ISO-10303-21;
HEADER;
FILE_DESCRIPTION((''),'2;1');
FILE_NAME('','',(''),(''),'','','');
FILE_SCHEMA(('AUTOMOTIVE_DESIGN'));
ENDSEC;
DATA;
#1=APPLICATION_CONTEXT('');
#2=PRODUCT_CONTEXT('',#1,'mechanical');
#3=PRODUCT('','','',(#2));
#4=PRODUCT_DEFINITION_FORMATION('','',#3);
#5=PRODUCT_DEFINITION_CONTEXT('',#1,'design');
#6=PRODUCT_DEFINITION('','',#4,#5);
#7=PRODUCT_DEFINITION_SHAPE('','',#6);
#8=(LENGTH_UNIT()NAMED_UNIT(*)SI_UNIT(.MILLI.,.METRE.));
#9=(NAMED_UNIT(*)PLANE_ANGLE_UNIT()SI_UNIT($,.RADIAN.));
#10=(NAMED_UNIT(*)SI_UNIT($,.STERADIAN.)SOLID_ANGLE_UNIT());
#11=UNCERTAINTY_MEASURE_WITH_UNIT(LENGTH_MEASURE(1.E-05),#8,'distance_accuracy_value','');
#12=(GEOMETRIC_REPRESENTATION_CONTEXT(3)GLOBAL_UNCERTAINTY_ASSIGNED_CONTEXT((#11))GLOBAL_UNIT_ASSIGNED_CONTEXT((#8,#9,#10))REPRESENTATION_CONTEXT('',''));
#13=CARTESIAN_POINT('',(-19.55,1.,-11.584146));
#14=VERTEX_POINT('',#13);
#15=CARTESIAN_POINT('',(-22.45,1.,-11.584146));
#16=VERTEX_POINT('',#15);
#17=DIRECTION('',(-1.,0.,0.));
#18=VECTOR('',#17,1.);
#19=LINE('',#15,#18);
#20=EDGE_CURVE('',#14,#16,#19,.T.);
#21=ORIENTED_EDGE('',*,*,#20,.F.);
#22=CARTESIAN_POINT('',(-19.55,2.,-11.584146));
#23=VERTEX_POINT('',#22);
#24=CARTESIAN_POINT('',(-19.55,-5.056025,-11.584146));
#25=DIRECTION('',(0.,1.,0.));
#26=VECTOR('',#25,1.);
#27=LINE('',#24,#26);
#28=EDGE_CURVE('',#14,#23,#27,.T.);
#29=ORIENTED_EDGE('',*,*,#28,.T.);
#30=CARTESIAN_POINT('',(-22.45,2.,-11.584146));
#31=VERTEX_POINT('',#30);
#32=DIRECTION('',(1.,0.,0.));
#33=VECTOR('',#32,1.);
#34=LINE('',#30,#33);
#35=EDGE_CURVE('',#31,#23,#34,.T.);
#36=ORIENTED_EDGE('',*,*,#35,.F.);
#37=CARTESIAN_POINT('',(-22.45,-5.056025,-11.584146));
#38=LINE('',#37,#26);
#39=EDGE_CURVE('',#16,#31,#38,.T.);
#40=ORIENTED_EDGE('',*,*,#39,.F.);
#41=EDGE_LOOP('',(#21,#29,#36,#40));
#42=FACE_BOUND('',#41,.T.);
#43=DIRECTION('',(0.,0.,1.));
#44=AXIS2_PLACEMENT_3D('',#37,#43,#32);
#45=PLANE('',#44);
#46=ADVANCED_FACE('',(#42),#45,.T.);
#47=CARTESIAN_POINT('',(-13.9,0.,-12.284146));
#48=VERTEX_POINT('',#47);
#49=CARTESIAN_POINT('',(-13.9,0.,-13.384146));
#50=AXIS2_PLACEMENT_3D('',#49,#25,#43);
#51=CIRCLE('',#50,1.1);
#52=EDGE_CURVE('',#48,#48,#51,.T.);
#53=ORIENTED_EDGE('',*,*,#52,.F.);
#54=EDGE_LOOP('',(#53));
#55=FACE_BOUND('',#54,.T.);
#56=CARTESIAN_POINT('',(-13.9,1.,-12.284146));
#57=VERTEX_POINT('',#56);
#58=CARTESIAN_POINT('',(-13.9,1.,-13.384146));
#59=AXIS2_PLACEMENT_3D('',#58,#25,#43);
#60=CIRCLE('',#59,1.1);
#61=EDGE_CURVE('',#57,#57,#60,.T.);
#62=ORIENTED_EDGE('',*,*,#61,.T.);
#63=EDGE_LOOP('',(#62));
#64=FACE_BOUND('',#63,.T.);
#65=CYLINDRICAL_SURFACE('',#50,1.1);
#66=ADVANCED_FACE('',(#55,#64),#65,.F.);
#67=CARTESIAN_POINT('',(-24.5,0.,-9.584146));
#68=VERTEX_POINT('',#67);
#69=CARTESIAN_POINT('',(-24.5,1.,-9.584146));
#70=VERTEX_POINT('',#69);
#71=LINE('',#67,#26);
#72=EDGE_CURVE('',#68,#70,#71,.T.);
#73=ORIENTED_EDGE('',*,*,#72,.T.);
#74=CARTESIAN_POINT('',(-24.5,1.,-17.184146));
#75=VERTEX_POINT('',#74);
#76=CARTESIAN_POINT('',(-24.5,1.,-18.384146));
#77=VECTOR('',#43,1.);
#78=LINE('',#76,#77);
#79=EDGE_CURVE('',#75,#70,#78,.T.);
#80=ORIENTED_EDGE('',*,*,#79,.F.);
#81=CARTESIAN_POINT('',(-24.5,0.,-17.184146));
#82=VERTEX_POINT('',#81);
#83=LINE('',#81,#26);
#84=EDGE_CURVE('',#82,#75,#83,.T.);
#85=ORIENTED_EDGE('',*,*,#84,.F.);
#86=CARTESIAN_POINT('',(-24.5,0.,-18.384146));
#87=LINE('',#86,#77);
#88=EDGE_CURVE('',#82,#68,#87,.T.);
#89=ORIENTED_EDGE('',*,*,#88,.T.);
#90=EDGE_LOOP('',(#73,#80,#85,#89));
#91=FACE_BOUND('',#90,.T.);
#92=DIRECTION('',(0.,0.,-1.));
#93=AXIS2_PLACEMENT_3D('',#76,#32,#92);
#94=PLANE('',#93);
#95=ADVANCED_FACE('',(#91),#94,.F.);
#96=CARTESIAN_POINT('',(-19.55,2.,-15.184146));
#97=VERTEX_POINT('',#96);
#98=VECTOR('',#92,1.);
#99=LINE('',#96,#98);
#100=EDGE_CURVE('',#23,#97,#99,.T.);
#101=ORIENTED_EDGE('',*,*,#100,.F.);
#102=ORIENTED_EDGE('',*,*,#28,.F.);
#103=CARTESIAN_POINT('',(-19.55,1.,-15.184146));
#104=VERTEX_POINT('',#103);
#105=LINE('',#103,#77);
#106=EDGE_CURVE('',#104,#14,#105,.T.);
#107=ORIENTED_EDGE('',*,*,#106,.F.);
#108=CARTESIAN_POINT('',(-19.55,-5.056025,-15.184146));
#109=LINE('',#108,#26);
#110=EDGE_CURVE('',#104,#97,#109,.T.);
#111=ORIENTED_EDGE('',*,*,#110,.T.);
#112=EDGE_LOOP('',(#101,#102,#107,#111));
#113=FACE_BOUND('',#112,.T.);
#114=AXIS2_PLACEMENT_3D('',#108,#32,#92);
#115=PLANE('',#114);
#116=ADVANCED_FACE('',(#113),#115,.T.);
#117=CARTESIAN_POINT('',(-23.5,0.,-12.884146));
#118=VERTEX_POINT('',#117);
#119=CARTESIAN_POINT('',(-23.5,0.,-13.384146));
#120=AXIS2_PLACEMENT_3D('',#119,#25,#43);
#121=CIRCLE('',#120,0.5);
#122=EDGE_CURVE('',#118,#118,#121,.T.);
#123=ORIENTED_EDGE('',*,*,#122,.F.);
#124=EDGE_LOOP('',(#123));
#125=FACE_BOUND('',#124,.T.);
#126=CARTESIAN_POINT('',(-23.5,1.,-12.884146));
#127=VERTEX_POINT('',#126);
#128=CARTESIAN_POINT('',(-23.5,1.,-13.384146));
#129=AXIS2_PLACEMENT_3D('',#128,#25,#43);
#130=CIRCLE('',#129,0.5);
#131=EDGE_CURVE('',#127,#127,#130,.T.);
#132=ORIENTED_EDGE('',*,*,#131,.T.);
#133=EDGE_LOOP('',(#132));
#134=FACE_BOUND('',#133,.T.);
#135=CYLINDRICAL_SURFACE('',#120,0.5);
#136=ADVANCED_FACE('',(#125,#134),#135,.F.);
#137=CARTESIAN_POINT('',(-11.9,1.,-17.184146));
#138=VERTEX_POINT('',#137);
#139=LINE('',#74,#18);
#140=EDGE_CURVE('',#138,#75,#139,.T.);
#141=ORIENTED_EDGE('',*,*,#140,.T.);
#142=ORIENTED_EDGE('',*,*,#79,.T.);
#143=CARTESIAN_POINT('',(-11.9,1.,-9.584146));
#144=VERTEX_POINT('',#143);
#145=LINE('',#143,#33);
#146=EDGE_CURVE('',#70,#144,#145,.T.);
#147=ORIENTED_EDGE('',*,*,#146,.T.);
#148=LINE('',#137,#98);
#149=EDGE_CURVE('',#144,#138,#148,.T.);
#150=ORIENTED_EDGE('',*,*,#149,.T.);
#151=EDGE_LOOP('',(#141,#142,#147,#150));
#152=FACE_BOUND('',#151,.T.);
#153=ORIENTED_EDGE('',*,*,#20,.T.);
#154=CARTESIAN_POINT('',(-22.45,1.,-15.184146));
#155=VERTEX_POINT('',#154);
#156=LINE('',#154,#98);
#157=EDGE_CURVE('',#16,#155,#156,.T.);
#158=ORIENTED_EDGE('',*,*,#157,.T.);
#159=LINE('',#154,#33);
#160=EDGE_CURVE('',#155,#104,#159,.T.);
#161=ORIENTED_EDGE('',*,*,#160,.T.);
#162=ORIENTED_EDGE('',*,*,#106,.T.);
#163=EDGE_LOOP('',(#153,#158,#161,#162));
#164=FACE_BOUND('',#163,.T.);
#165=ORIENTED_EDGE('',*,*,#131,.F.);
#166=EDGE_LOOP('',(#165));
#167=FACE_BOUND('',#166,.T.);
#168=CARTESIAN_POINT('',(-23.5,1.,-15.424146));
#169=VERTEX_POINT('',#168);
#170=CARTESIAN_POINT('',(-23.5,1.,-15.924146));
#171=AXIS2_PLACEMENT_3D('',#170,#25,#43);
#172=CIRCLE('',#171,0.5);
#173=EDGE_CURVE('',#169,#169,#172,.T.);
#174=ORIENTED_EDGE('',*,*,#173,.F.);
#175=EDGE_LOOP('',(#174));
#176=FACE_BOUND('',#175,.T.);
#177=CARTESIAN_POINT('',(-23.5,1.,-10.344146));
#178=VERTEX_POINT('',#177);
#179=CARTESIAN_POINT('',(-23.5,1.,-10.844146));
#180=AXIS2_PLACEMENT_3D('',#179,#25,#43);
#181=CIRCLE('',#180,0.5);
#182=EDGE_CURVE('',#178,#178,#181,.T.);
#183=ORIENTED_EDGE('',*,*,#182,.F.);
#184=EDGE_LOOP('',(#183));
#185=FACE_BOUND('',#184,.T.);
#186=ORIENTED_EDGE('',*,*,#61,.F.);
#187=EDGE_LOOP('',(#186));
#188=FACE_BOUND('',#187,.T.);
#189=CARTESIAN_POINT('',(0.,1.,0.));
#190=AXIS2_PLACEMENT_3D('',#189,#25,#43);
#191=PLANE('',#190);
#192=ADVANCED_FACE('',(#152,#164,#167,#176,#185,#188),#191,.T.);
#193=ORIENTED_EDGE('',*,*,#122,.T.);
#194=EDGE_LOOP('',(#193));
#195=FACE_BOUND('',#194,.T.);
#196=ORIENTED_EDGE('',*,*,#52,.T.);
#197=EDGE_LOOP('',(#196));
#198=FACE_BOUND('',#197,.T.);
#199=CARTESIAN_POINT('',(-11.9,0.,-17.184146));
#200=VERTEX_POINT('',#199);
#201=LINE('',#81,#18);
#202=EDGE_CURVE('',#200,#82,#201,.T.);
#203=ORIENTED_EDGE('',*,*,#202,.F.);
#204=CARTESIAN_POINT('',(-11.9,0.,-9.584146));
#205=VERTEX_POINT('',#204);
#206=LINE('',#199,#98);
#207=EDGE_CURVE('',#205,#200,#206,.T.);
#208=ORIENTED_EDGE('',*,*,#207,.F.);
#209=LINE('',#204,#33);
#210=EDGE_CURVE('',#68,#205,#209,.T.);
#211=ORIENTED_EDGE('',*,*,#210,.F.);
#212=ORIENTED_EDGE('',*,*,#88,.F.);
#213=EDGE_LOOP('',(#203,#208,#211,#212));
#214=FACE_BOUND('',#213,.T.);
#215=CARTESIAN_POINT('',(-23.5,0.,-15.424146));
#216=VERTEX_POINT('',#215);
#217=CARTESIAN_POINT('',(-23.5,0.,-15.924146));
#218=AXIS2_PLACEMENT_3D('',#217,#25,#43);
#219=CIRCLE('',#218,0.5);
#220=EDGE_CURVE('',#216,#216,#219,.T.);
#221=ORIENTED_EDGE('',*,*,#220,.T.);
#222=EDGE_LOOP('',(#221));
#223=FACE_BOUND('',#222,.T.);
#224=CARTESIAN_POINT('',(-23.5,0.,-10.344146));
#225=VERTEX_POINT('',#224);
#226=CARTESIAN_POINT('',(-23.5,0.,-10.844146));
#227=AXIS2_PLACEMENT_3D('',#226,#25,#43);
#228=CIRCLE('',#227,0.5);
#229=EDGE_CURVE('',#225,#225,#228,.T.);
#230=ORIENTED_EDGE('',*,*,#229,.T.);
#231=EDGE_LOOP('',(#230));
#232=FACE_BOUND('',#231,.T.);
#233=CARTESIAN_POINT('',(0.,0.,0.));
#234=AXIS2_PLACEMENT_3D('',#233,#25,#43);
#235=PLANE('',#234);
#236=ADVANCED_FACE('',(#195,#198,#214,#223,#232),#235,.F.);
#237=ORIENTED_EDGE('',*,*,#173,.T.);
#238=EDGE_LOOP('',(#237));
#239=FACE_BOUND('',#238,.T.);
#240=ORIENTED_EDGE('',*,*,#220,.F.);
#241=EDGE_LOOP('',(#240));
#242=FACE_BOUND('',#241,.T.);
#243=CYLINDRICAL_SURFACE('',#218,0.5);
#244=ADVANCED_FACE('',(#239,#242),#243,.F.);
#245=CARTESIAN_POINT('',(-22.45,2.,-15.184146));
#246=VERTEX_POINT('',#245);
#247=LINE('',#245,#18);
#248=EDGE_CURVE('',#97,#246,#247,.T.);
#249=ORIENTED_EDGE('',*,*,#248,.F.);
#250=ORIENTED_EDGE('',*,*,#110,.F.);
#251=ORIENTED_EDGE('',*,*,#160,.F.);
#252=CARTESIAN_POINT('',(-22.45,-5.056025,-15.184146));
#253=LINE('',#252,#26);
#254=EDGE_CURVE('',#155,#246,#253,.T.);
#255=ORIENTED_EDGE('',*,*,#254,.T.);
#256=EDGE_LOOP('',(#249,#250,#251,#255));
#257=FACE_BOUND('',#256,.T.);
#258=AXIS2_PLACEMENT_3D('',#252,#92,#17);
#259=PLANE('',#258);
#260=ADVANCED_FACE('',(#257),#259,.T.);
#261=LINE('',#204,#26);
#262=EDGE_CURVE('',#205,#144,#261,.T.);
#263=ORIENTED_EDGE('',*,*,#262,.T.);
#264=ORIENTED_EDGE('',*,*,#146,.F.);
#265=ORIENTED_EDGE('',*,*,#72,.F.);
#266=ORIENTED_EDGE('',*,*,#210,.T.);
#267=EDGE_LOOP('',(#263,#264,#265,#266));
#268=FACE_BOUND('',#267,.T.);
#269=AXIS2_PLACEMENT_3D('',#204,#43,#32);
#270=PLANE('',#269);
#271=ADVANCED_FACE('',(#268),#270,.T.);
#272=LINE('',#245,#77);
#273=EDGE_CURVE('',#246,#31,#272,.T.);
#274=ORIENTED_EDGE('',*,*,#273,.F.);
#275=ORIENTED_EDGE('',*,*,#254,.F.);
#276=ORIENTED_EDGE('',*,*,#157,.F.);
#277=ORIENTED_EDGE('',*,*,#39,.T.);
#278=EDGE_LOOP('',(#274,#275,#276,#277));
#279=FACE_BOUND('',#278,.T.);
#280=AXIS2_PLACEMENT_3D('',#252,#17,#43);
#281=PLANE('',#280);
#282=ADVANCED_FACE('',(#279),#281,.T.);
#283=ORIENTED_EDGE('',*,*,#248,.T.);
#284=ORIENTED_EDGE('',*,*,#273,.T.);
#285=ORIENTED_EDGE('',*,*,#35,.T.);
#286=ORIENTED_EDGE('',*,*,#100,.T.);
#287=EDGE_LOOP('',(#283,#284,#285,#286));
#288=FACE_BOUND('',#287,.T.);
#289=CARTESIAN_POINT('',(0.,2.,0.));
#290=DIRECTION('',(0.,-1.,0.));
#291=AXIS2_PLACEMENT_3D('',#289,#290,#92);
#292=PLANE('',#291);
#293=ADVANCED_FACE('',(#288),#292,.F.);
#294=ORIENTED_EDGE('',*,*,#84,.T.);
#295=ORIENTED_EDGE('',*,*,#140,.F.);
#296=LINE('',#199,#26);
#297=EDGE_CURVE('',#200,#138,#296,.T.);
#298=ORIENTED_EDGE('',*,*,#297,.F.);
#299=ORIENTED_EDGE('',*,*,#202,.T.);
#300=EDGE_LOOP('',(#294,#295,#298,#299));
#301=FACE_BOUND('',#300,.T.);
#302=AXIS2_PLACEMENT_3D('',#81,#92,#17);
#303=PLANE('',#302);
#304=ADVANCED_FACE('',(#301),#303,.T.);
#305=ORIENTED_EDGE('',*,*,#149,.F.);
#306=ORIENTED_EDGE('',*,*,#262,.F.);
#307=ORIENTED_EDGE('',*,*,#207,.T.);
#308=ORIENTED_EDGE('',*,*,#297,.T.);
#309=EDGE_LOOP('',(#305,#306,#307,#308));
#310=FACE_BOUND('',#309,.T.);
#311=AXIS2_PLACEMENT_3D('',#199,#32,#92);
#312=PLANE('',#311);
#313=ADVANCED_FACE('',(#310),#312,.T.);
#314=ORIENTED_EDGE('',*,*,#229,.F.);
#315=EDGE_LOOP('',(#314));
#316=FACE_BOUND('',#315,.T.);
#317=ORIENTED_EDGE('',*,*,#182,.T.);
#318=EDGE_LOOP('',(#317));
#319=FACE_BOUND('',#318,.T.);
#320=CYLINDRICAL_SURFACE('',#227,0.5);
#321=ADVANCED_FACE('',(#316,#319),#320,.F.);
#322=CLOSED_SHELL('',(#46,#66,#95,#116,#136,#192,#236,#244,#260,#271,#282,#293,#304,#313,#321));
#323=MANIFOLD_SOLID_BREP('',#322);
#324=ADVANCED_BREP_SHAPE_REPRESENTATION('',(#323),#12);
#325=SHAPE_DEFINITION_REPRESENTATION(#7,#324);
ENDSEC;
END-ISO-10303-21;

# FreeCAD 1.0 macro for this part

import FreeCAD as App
import Part
import Sketcher
from FreeCAD import Vector


def add_polygon(sketch, points):
    """Adds a closed chain of lines whose ends are joined by coincident constraints."""
    first, n = sketch.GeometryCount, len(points)
    for a, b in zip(points, points[1:] + points[:1]):
        sketch.addGeometry(Part.LineSegment(App.Vector(*a, 0), App.Vector(*b, 0)), False)
    for i in range(n):
        sketch.addConstraint(Sketcher.Constraint("Coincident", first + i, 2, first + (i + 1) % n, 1))

doc = App.newDocument("Part")
body = doc.addObject("PartDesign::Body", "Body")

# Sketch on XZ plane
sketch1 = doc.addObject("Sketcher::SketchObject", "Sketch")
body.addObject(sketch1)
sketch1.AttachmentSupport = (doc.XZ_Plane, [""])
sketch1.MapMode = "FlatFace"
add_polygon(sketch1, [(-24, -18), (-24, -8), (-8, -8), (-8, -18)])  # lines 0-3
sketch1.addConstraint([
    Sketcher.Constraint("Vertical", 0),
    Sketcher.Constraint("Horizontal", 1),
    Sketcher.Constraint("Vertical", 2),
    Sketcher.Constraint("Horizontal", 3),
    Sketcher.Constraint("DistanceX", 1, 1, 1, 2, 17.0),
    Sketcher.Constraint("DistanceY", 0, 1, 0, 2, 10.0),
    Sketcher.Constraint("DistanceX", 0, 2, -1, 1, 24.5),
    Sketcher.Constraint("DistanceY", 0, 2, -1, 1, 8.384146),
])
pad1 = doc.addObject("PartDesign::Pad", "Pad")
body.addObject(pad1)
pad1.Profile = sketch1
pad1.Length = 1
pad1.Reversed = True

# Sketch on XZ plane
sketch2 = doc.addObject("Sketcher::SketchObject", "Sketch001")
body.addObject(sketch2)
sketch2.AttachmentSupport = (doc.XZ_Plane, [""])
sketch2.MapMode = "FlatFace"
sketch2.AttachmentOffset = App.Placement(Vector(0, 0, -1), App.Rotation())
add_polygon(sketch2, [(-22.5, -15.4), (-22.5, -11.4), (-19.5, -11.4), (-19.5, -15.4)])  # lines 0-3
sketch2.addConstraint([
    Sketcher.Constraint("Vertical", 0),
    Sketcher.Constraint("Horizontal", 1),
    Sketcher.Constraint("Vertical", 2),
    Sketcher.Constraint("Horizontal", 3),
    Sketcher.Constraint("DistanceX", 1, 1, 1, 2, 3.0),
    Sketcher.Constraint("DistanceY", 0, 1, 0, 2, 4.0),
    Sketcher.Constraint("DistanceX", 0, 2, -1, 1, 22.5),
    Sketcher.Constraint("DistanceY", 0, 2, -1, 1, 11.384146),
])
pad2 = doc.addObject("PartDesign::Pad", "Pad001")
body.addObject(pad2)
pad2.Profile = sketch2
pad2.Length = 1
pad2.Reversed = True

# Sketch on XZ plane
sketch3 = doc.addObject("Sketcher::SketchObject", "Sketch002")
body.addObject(sketch3)
sketch3.AttachmentSupport = (doc.XZ_Plane, [""])
sketch3.MapMode = "FlatFace"
sketch3.AttachmentOffset = App.Placement(Vector(0, 0, -1), App.Rotation())
add_polygon(sketch3, [(-29, -19), (-29, -8), (-7, -8), (-7, -19)])  # lines 0-3
add_polygon(sketch3, [(-12, -10), (-24, -10), (-24, -17), (-12, -17)])  # lines 4-7
sketch3.addConstraint([
    Sketcher.Constraint("Vertical", 0),
    Sketcher.Constraint("Horizontal", 1),
    Sketcher.Constraint("Vertical", 2),
    Sketcher.Constraint("Horizontal", 3),
    Sketcher.Constraint("Horizontal", 4),
    Sketcher.Constraint("Vertical", 5),
    Sketcher.Constraint("Horizontal", 6),
    Sketcher.Constraint("Vertical", 7),
    Sketcher.Constraint("DistanceX", 4, 2, 4, 1, 12.6),
    Sketcher.Constraint("DistanceY", 5, 2, 5, 1, 7.6),
    Sketcher.Constraint("DistanceX", 4, 2, -1, 1, 24.5),
    Sketcher.Constraint("DistanceX", 1, 1, 1, 2, 22.308499),
    Sketcher.Constraint("DistanceY", 0, 1, 0, 2, 11.481162),
    Sketcher.Constraint("DistanceY", 0, 2, -1, 1, 7.852789),
    Sketcher.Constraint("DistanceX", 0, 2, -1, 1, 29.181106),
    Sketcher.Constraint("DistanceY", 4, 2, -1, 1, 9.584146),
])
pocket1 = doc.addObject("PartDesign::Pocket", "Pocket")
body.addObject(pocket1)
pocket1.Profile = sketch3
pocket1.Length = 1
pocket1.Reversed = True

# Sketch on XZ plane
sketch4 = doc.addObject("Sketcher::SketchObject", "Sketch003")
body.addObject(sketch4)
sketch4.AttachmentSupport = (doc.XZ_Plane, [""])
sketch4.MapMode = "FlatFace"
sketch4.AttachmentOffset = App.Placement(Vector(0, 0, -1), App.Rotation())
sketch4.addGeometry([
    Part.Circle(Vector(-23.5, -13.4, 0), Vector(0, 0, 1), 0.5),
    Part.Circle(Vector(-23.5, -15.9, 0), Vector(0, 0, 1), 0.5),
    Part.Circle(Vector(-23.5, -10.8, 0), Vector(0, 0, 1), 0.5),
    Part.Circle(Vector(-13.9, -13.4, 0), Vector(0, 0, 1), 1.1),
], False)
sketch4.addConstraint([
    Sketcher.Constraint("Equal", 0, 1),
    Sketcher.Constraint("Equal", 1, 2),
    Sketcher.Constraint("Horizontal", 0, 3, 3, 3),
    Sketcher.Constraint("Vertical", 0, 3, 1, 3),
    Sketcher.Constraint("Vertical", 1, 3, 2, 3),
    Sketcher.Constraint("Diameter", 0, 1.0),
    Sketcher.Constraint("Diameter", 3, 2.2),
    Sketcher.Constraint("DistanceX", 0, 3, -1, 1, 23.5),
    Sketcher.Constraint("DistanceX", 3, 3, -1, 1, 13.9),
    Sketcher.Constraint("DistanceY", 1, 3, 0, 3, 2.54),
    Sketcher.Constraint("DistanceY", 0, 3, 2, 3, 2.54),
    Sketcher.Constraint("DistanceY", 0, 3, -1, 1, 13.384146),
])
pocket2 = doc.addObject("PartDesign::Pocket", "Pocket001")
body.addObject(pocket2)
pocket2.Profile = sketch4
pocket2.Length = 1
pocket2.Reversed = True

# Sketch on XZ plane
sketch5 = doc.addObject("Sketcher::SketchObject", "Sketch004")
body.addObject(sketch5)
sketch5.AttachmentSupport = (doc.XZ_Plane, [""])
sketch5.MapMode = "FlatFace"
sketch5.AttachmentOffset = App.Placement(Vector(0, 0, -2), App.Rotation())
add_polygon(sketch5, [(-22.7, -15.9), (-22.7, -11.1), (-19.1, -11.1), (-19.1, -15.9)])  # lines 0-3
add_polygon(sketch5, [(-19.6, -11.6), (-22.4, -11.6), (-22.4, -15.2), (-19.6, -15.2)])  # lines 4-7
sketch5.addConstraint([
    Sketcher.Constraint("Vertical", 0),
    Sketcher.Constraint("Horizontal", 1),
    Sketcher.Constraint("Vertical", 2),
    Sketcher.Constraint("Horizontal", 3),
    Sketcher.Constraint("Horizontal", 4),
    Sketcher.Constraint("Vertical", 5),
    Sketcher.Constraint("Horizontal", 6),
    Sketcher.Constraint("Vertical", 7),
    Sketcher.Constraint("DistanceX", 4, 2, 4, 1, 2.9),
    Sketcher.Constraint("DistanceY", 5, 2, 5, 1, 3.6),
    Sketcher.Constraint("DistanceX", 4, 2, -1, 1, 22.45),
    Sketcher.Constraint("DistanceX", 1, 1, 1, 2, 3.647172),
    Sketcher.Constraint("DistanceY", 0, 1, 0, 2, 4.834623),
    Sketcher.Constraint("DistanceY", 2, 2, -1, 1, 15.891819),
    Sketcher.Constraint("DistanceY", 4, 2, 0, 2, 0.526951),
    Sketcher.Constraint("DistanceX", 0, 2, -1, 1, 22.749417),
])
pocket3 = doc.addObject("PartDesign::Pocket", "Pocket002")
body.addObject(pocket3)
pocket3.Profile = sketch5
pocket3.Length = 1
pocket3.Reversed = True

doc.recompute()
